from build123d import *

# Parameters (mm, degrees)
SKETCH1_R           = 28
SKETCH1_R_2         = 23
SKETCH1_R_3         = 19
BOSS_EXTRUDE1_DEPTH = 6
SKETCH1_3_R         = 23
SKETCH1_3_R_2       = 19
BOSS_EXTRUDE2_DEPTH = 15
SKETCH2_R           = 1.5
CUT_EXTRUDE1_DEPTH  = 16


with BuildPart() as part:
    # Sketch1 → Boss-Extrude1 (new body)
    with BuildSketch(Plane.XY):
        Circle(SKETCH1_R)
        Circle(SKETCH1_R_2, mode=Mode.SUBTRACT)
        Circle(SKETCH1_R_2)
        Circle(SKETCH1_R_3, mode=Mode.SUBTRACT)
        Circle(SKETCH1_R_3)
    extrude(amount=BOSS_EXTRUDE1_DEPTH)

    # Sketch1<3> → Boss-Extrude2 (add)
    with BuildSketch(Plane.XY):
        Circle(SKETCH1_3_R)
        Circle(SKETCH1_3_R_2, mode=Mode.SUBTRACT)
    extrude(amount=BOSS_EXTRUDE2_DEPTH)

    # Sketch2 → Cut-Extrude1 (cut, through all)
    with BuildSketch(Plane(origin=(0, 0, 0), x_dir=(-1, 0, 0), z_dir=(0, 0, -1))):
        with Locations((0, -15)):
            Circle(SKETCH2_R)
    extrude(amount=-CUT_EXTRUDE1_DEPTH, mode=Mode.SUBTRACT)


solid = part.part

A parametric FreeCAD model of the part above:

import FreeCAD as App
import Part
import Sketcher
from FreeCAD import Vector
Q = App.Units.Quantity

doc = App.newDocument("Part")
body = doc.addObject("PartDesign::Body", "Body")

# Sketch on XY plane
sketch1 = body.newObject("Sketcher::SketchObject", "Sketch")
sketch1.AttachmentSupport = (doc.getObject("XY_Plane"), [""])
sketch1.MapMode = "FlatFace"
sketch1.addGeometry(Part.Circle(Vector(0, 0, 0), Vector(0, 0, 1), 28), False)
sketch1.addConstraint([
    Sketcher.Constraint("Coincident", 0, 3, -1, 1),
    Sketcher.Constraint("Diameter", 0, Q("56 mm")),
])
pad1 = body.newObject("PartDesign::Pad", "Pad")
pad1.Profile = sketch1
pad1.Length = 6

# Sketch on XY plane
sketch2 = body.newObject("Sketcher::SketchObject", "Sketch001")
sketch2.AttachmentSupport = (doc.getObject("XY_Plane"), [""])
sketch2.MapMode = "FlatFace"
sketch2.addGeometry([
    Part.Circle(Vector(0, 0, 0), Vector(0, 0, 1), 23),
    Part.Circle(Vector(0, 0, 0), Vector(0, 0, 1), 19),
], False)
sketch2.addConstraint([
    Sketcher.Constraint("Coincident", 0, 3, -1, 1),
    Sketcher.Constraint("Coincident", 1, 3, -1, 1),
    Sketcher.Constraint("Diameter", 0, Q("46 mm")),
    Sketcher.Constraint("Diameter", 1, Q("38 mm")),
])
pad2 = body.newObject("PartDesign::Pad", "Pad001")
pad2.Profile = sketch2
pad2.Length = 15

# Sketch on XY plane
sketch3 = body.newObject("Sketcher::SketchObject", "Sketch002")
sketch3.AttachmentSupport = (doc.getObject("XY_Plane"), [""])
sketch3.MapMode = "FlatFace"
sketch3.addGeometry(Part.Circle(Vector(0, -15, 0), Vector(0, 0, 1), 1.5), False)
sketch3.addConstraint([
    Sketcher.Constraint("PointOnObject", 0, 3, -2),
    Sketcher.Constraint("Diameter", 0, Q("3 mm")),
    Sketcher.Constraint("DistanceY", 0, 3, -1, 1, Q("15 mm")),
])
pocket1 = body.newObject("PartDesign::Pocket", "Pocket")
pocket1.Profile = sketch3
pocket1.Type = "ThroughAll"
pocket1.Reversed = True

doc.recompute()
